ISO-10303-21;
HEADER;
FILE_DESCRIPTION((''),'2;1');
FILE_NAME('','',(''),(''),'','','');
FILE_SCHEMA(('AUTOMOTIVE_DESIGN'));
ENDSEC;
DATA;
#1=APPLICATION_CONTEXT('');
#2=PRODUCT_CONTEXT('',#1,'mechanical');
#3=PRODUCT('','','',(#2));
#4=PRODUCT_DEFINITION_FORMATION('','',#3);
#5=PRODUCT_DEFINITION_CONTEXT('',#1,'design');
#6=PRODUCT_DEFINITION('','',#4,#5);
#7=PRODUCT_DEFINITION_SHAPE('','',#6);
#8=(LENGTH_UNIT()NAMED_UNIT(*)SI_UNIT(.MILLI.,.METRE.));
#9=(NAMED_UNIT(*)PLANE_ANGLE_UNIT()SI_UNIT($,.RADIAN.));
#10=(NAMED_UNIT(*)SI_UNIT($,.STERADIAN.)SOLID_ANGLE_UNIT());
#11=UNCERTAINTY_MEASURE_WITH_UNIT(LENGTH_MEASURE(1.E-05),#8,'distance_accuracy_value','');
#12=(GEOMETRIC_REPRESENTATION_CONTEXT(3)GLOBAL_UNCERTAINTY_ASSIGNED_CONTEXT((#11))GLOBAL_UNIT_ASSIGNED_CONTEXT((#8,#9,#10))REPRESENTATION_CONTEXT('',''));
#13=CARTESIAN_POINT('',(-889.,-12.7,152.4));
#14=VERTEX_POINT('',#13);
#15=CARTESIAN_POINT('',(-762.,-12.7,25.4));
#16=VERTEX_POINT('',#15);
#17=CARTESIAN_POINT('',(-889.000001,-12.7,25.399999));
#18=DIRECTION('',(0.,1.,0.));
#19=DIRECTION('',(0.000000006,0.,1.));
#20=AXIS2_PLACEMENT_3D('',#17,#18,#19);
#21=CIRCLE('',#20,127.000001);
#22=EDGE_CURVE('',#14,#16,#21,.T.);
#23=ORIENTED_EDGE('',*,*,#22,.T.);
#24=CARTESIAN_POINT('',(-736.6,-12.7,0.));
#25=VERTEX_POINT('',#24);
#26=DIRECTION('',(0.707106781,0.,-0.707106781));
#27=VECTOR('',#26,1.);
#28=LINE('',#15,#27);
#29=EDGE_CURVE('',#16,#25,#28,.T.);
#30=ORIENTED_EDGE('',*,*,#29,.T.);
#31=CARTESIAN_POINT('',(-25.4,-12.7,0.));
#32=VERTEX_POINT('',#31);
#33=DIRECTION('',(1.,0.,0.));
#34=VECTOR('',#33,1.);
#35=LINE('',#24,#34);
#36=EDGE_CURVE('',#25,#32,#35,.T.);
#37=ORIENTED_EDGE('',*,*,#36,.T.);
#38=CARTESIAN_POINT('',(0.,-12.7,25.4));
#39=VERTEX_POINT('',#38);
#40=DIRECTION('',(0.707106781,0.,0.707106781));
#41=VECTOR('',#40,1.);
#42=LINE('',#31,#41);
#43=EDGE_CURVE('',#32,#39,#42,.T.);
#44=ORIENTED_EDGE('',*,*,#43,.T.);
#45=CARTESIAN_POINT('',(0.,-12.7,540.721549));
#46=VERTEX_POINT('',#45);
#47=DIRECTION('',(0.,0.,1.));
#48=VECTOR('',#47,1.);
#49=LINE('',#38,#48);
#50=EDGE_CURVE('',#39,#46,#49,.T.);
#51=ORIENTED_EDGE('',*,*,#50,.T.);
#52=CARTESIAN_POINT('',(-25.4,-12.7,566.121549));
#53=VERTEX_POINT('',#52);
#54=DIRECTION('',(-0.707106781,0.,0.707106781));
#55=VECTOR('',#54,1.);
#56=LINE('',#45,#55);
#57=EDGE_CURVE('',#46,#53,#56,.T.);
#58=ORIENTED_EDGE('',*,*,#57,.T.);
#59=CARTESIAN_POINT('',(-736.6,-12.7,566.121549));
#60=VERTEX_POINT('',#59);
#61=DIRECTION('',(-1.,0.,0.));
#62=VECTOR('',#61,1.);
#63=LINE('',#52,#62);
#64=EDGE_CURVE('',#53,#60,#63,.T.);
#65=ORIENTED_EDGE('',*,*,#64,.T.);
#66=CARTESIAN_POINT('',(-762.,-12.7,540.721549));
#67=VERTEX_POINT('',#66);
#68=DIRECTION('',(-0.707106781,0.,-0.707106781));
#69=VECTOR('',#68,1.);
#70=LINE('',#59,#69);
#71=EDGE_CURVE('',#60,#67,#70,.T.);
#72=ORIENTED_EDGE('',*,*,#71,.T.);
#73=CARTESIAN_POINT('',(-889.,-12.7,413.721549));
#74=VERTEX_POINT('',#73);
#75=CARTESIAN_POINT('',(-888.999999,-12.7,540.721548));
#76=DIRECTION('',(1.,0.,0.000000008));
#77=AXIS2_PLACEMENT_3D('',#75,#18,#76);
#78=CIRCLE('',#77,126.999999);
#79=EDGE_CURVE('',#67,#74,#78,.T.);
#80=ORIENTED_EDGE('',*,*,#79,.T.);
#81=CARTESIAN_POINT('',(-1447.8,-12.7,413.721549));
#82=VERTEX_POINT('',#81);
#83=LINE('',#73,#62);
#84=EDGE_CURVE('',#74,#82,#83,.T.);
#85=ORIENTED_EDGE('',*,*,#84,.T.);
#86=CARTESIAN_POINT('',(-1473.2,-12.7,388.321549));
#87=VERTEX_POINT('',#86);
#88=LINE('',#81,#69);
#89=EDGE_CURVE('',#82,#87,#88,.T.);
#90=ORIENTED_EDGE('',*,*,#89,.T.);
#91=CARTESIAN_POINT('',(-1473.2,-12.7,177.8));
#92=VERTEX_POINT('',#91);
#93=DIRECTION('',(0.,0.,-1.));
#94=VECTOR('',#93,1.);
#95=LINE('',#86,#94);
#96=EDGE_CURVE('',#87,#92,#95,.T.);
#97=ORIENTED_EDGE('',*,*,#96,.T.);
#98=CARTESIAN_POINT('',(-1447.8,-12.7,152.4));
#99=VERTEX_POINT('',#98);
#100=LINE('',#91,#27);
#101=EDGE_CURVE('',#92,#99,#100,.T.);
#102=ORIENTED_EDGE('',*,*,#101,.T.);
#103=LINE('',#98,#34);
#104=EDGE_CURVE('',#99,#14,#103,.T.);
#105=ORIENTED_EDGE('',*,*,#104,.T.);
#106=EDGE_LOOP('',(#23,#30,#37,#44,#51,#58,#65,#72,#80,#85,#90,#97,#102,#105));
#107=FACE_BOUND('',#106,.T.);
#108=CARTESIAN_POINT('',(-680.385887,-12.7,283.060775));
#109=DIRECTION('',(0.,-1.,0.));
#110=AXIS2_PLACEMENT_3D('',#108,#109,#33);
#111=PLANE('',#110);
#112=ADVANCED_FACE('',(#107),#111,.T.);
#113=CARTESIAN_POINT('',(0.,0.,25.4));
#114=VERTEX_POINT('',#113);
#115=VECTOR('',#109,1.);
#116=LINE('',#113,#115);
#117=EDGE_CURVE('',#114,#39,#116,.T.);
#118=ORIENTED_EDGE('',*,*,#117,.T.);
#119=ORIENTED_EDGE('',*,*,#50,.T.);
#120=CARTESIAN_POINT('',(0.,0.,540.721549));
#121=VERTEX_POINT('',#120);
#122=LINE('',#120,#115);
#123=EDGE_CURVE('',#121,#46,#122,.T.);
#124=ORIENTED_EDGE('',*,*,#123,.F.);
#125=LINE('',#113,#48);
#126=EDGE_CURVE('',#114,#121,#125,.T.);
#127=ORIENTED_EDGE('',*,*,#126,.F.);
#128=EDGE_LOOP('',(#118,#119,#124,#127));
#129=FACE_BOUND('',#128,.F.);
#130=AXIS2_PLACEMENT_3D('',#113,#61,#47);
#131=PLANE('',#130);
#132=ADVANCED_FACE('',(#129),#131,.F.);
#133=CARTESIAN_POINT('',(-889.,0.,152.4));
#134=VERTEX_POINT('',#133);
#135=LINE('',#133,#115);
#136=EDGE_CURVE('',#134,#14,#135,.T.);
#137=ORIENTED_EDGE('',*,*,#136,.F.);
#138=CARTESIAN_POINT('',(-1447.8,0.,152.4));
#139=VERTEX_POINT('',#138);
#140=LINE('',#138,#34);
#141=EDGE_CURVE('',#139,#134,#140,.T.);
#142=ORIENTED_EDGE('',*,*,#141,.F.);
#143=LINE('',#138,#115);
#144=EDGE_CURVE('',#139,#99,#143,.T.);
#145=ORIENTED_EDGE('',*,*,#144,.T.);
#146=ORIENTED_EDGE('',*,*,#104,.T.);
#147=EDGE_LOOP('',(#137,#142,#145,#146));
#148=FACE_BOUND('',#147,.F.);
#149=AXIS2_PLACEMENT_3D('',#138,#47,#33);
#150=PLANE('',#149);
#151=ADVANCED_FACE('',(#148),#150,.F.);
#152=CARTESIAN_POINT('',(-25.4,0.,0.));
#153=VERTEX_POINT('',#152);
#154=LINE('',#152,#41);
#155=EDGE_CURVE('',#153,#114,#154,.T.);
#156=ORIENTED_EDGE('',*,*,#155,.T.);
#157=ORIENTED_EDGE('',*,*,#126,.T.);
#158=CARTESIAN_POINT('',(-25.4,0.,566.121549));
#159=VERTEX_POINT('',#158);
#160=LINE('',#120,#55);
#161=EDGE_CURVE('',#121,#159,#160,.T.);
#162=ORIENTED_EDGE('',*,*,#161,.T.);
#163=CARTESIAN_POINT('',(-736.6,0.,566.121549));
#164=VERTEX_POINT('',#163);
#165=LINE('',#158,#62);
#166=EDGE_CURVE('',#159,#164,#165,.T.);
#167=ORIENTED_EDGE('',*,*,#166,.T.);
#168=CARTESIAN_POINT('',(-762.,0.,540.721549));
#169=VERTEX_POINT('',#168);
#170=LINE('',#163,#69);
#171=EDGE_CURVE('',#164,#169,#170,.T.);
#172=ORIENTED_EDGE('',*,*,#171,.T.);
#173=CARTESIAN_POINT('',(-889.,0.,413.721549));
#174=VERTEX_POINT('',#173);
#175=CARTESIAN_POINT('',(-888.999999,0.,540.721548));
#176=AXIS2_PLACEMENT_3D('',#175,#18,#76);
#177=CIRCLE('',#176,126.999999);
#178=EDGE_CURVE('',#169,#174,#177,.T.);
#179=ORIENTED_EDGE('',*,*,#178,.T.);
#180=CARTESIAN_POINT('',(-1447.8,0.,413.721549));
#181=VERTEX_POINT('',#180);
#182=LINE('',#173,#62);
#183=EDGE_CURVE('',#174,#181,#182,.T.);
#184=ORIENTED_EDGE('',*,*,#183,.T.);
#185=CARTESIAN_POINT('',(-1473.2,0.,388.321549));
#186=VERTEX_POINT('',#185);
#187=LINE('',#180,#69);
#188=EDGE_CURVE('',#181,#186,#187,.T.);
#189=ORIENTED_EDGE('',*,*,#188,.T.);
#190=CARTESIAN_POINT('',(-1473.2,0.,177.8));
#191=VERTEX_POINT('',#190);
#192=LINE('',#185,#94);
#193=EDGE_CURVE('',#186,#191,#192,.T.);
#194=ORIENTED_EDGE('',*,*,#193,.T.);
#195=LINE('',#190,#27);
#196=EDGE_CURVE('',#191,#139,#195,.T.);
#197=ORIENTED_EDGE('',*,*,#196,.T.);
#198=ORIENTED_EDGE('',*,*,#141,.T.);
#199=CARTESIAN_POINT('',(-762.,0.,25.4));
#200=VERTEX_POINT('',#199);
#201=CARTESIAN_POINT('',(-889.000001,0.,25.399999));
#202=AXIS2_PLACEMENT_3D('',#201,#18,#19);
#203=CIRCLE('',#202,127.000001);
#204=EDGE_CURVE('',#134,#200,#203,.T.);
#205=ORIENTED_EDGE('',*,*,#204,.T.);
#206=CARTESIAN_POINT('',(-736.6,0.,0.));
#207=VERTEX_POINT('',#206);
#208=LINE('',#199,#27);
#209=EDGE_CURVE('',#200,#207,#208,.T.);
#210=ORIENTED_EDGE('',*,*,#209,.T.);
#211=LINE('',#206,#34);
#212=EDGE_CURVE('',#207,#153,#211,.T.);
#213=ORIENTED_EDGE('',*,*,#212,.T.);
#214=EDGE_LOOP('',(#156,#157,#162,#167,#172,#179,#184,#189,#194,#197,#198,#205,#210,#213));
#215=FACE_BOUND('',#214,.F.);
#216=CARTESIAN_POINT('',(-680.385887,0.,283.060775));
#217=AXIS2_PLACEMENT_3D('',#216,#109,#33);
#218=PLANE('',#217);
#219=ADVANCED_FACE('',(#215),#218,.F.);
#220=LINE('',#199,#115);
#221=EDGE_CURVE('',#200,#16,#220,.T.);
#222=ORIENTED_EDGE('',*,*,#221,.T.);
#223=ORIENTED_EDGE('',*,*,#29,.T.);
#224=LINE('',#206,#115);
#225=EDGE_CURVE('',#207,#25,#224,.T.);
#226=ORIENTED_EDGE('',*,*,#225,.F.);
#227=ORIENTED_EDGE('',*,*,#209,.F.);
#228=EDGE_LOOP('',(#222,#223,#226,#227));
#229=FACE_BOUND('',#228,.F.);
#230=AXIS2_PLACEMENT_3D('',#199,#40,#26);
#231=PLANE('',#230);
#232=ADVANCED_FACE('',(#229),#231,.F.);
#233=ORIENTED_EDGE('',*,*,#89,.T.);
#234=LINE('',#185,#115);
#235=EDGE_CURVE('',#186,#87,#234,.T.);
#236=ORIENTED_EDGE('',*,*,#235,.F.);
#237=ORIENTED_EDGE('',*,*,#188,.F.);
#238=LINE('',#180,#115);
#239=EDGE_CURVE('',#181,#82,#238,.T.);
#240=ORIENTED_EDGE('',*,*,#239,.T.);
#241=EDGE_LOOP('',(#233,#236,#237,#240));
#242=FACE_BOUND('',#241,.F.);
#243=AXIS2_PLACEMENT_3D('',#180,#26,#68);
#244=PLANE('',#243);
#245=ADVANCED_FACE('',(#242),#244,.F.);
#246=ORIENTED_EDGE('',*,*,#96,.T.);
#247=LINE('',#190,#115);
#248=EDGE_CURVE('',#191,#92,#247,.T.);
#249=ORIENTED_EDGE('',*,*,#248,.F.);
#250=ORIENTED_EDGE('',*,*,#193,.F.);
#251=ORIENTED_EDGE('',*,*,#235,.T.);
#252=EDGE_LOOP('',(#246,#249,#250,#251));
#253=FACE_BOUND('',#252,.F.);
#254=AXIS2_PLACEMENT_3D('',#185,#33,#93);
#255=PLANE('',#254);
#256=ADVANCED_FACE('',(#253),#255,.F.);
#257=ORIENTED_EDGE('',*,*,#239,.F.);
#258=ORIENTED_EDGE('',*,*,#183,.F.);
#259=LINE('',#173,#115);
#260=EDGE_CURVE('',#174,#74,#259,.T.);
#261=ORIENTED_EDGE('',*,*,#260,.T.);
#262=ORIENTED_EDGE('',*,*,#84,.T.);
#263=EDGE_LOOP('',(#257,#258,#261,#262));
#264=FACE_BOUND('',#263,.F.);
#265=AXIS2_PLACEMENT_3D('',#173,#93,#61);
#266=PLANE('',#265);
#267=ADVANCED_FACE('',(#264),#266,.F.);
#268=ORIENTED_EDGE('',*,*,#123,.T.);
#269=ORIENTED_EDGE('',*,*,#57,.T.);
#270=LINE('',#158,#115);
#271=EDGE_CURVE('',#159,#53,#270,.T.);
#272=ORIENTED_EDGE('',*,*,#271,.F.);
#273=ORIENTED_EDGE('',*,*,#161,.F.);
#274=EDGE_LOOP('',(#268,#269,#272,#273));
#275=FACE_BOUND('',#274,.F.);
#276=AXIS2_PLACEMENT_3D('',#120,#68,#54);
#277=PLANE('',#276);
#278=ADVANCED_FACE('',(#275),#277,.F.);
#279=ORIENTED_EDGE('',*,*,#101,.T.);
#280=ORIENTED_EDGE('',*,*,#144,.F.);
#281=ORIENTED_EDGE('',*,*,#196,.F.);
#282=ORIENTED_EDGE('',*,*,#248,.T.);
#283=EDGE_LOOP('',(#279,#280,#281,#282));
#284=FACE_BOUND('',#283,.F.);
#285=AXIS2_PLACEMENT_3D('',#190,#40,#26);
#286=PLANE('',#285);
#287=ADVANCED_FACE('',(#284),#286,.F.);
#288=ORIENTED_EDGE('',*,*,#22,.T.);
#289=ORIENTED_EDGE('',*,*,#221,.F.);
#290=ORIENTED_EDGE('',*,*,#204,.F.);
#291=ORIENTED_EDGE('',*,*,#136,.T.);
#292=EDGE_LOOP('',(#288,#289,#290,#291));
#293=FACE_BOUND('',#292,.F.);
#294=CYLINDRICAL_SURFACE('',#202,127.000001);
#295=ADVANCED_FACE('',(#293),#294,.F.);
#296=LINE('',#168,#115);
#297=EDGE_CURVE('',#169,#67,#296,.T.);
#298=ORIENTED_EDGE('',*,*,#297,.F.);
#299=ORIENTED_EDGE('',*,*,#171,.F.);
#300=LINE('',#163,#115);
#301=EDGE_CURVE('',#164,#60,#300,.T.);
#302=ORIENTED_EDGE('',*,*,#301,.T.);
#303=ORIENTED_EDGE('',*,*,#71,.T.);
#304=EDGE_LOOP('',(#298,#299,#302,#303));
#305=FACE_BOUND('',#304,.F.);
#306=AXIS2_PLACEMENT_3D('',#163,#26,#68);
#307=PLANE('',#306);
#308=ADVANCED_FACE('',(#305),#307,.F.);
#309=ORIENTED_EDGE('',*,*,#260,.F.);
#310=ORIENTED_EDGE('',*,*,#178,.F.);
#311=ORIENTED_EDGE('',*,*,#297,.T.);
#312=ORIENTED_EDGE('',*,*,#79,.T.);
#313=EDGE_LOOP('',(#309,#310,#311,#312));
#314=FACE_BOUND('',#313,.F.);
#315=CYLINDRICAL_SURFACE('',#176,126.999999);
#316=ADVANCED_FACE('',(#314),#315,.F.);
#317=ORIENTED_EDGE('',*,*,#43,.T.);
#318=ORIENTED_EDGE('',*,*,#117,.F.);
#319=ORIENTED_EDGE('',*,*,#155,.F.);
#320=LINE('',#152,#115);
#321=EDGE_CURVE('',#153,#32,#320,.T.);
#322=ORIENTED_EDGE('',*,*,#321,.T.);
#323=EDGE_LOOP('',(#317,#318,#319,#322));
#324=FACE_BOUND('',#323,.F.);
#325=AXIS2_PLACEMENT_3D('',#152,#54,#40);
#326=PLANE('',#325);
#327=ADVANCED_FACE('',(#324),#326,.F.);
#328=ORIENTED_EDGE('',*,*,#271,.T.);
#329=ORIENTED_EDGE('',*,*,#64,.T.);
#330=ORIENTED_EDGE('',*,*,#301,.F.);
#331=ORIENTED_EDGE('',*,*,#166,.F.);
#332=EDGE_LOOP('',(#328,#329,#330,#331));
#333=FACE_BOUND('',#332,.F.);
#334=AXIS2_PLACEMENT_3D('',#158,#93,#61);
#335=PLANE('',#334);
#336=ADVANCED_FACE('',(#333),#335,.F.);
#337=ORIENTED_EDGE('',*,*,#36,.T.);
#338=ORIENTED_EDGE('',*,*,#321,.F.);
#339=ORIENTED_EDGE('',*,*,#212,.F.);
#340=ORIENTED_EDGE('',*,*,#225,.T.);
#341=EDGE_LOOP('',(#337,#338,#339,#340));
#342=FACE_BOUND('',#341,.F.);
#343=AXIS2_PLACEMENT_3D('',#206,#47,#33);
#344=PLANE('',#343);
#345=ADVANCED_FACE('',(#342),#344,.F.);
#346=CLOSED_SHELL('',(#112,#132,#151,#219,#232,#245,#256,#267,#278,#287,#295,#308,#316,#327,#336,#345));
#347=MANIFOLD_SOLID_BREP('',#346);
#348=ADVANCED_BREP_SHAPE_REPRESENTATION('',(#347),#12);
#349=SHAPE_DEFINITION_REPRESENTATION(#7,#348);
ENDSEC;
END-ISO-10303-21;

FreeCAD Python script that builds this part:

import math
import FreeCAD as App
import Part
import Sketcher
from FreeCAD import Vector
Q = App.Units.Quantity

doc = App.newDocument("Part")
params = doc.addObject("Spreadsheet::Sheet", "Params")
for row, (alias, value) in enumerate([
    ("sketch1_radius", "5 in"),
    ("sketch1_width", "28 in"),
    ("sketch1_width2", "22 in"),
    ("pad1_length", "0.5 in"),
], start=1):
    params.set(f"A{row}", alias)
    params.set(f"B{row}", "=" + value)
    params.setAlias(f"B{row}", alias)

body = doc.addObject("PartDesign::Body", "Body")

# Sketch on XZ plane
sketch1 = body.newObject("Sketcher::SketchObject", "Sketch")
sketch1.AttachmentSupport = (doc.getObject("XZ_Plane"), [""])
sketch1.MapMode = "FlatFace"
sketch1.addGeometry([
    Part.LineSegment(Vector(-25, 0, 0), Vector(0, 25, 0)),  # 0
    Part.LineSegment(Vector(0, 25, 0), Vector(0, 541, 0)),  # 1
    Part.LineSegment(Vector(0, 541, 0), Vector(-25, 566, 0)),  # 2
    Part.LineSegment(Vector(-25, 566, 0), Vector(-737, 566, 0)),  # 3
    Part.LineSegment(Vector(-737, 566, 0), Vector(-762, 541, 0)),  # 4
    Part.ArcOfCircle(Part.Circle(Vector(-889, 541, 0), Vector(0, 0, 1), 127), math.radians(-90), math.radians(0)),  # 5
    Part.LineSegment(Vector(-889, 414, 0), Vector(-1448, 414, 0)),  # 6
    Part.LineSegment(Vector(-1448, 414, 0), Vector(-1473, 388, 0)),  # 7
    Part.LineSegment(Vector(-1473, 388, 0), Vector(-1473, 178, 0)),  # 8
    Part.LineSegment(Vector(-1473, 178, 0), Vector(-1448, 152, 0)),  # 9
    Part.LineSegment(Vector(-1448, 152, 0), Vector(-889, 152, 0)),  # 10
    Part.ArcOfCircle(Part.Circle(Vector(-889, 25, 0), Vector(0, 0, 1), 127), math.radians(0), math.radians(90)),  # 11
    Part.LineSegment(Vector(-762, 25, 0), Vector(-737, 0, 0)),  # 12
    Part.LineSegment(Vector(-737, 0, 0), Vector(-25, 0, 0)),  # 13
], False)
sketch1.addConstraint([
    Sketcher.Constraint("Coincident", 0, 2, 1, 1),
    Sketcher.Constraint("Coincident", 1, 2, 2, 1),
    Sketcher.Constraint("Coincident", 2, 2, 3, 1),
    Sketcher.Constraint("Coincident", 3, 2, 4, 1),
    Sketcher.Constraint("Coincident", 4, 2, 5, 2),
    Sketcher.Constraint("Tangent", 5, 1, 6, 1),
    Sketcher.Constraint("Coincident", 6, 2, 7, 1),
    Sketcher.Constraint("Coincident", 7, 2, 8, 1),
    Sketcher.Constraint("Coincident", 8, 2, 9, 1),
    Sketcher.Constraint("Coincident", 9, 2, 10, 1),
    Sketcher.Constraint("Tangent", 10, 2, 11, 2),
    Sketcher.Constraint("Coincident", 11, 1, 12, 1),
    Sketcher.Constraint("Coincident", 12, 2, 13, 1),
    Sketcher.Constraint("Coincident", 13, 2, 0, 1),
    Sketcher.Constraint("Vertical", 1),
    Sketcher.Constraint("Horizontal", 3),
    Sketcher.Constraint("Horizontal", 6),
    Sketcher.Constraint("Vertical", 8),
    Sketcher.Constraint("Horizontal", 10),
    Sketcher.Constraint("Horizontal", 13),
    Sketcher.Constraint("Equal", 5, 11),
    Sketcher.Constraint("PointOnObject", 0, 2, -2),
    Sketcher.Constraint("PointOnObject", 12, 2, -1),
    Sketcher.Constraint("Perpendicular", 0, 2),
    Sketcher.Constraint("Perpendicular", 2, 4),
    Sketcher.Constraint("Parallel", 4, 7),
    Sketcher.Constraint("Perpendicular", 7, 9),
    Sketcher.Constraint("Parallel", 9, 12),
    Sketcher.Constraint("Horizontal", 11, 3, 0, 2),
    Sketcher.Constraint("Horizontal", 5, 3, 1, 2),
    Sketcher.Constraint("Horizontal", 1, 2, 4, 2),
    Sketcher.Constraint("Horizontal", 0, 2, 11, 1),
    Sketcher.Constraint("Vertical", 5, 3, 11, 3),
    Sketcher.Constraint("Vertical", 6, 2, 9, 2),
    Sketcher.Constraint("Vertical", 3, 2, 12, 2),
    Sketcher.Constraint("Vertical", 2, 2, 13, 2),
    Sketcher.Constraint("Equal", 4, 7),
    Sketcher.Constraint("Radius", 5, Q("5 in")),
    Sketcher.Constraint("DistanceX", 3, 2, 3, 1, Q("28 in")),
    Sketcher.Constraint("DistanceX", 6, 2, 6, 1, Q("22 in")),
    Sketcher.Constraint("DistanceX", 5, 3, -1, 1, Q("35 in")),
    Sketcher.Constraint("DistanceY", 1, 1, 1, 2, Q("515.321549 mm")),
])
sketch1.setExpression("Constraints[37]", "Params.sketch1_radius")
sketch1.setExpression("Constraints[38]", "Params.sketch1_width")
sketch1.setExpression("Constraints[39]", "Params.sketch1_width2")
pad1 = body.newObject("PartDesign::Pad", "Pad")
pad1.Profile = sketch1
pad1.setExpression("Length", "Params.pad1_length")

doc.recompute()
